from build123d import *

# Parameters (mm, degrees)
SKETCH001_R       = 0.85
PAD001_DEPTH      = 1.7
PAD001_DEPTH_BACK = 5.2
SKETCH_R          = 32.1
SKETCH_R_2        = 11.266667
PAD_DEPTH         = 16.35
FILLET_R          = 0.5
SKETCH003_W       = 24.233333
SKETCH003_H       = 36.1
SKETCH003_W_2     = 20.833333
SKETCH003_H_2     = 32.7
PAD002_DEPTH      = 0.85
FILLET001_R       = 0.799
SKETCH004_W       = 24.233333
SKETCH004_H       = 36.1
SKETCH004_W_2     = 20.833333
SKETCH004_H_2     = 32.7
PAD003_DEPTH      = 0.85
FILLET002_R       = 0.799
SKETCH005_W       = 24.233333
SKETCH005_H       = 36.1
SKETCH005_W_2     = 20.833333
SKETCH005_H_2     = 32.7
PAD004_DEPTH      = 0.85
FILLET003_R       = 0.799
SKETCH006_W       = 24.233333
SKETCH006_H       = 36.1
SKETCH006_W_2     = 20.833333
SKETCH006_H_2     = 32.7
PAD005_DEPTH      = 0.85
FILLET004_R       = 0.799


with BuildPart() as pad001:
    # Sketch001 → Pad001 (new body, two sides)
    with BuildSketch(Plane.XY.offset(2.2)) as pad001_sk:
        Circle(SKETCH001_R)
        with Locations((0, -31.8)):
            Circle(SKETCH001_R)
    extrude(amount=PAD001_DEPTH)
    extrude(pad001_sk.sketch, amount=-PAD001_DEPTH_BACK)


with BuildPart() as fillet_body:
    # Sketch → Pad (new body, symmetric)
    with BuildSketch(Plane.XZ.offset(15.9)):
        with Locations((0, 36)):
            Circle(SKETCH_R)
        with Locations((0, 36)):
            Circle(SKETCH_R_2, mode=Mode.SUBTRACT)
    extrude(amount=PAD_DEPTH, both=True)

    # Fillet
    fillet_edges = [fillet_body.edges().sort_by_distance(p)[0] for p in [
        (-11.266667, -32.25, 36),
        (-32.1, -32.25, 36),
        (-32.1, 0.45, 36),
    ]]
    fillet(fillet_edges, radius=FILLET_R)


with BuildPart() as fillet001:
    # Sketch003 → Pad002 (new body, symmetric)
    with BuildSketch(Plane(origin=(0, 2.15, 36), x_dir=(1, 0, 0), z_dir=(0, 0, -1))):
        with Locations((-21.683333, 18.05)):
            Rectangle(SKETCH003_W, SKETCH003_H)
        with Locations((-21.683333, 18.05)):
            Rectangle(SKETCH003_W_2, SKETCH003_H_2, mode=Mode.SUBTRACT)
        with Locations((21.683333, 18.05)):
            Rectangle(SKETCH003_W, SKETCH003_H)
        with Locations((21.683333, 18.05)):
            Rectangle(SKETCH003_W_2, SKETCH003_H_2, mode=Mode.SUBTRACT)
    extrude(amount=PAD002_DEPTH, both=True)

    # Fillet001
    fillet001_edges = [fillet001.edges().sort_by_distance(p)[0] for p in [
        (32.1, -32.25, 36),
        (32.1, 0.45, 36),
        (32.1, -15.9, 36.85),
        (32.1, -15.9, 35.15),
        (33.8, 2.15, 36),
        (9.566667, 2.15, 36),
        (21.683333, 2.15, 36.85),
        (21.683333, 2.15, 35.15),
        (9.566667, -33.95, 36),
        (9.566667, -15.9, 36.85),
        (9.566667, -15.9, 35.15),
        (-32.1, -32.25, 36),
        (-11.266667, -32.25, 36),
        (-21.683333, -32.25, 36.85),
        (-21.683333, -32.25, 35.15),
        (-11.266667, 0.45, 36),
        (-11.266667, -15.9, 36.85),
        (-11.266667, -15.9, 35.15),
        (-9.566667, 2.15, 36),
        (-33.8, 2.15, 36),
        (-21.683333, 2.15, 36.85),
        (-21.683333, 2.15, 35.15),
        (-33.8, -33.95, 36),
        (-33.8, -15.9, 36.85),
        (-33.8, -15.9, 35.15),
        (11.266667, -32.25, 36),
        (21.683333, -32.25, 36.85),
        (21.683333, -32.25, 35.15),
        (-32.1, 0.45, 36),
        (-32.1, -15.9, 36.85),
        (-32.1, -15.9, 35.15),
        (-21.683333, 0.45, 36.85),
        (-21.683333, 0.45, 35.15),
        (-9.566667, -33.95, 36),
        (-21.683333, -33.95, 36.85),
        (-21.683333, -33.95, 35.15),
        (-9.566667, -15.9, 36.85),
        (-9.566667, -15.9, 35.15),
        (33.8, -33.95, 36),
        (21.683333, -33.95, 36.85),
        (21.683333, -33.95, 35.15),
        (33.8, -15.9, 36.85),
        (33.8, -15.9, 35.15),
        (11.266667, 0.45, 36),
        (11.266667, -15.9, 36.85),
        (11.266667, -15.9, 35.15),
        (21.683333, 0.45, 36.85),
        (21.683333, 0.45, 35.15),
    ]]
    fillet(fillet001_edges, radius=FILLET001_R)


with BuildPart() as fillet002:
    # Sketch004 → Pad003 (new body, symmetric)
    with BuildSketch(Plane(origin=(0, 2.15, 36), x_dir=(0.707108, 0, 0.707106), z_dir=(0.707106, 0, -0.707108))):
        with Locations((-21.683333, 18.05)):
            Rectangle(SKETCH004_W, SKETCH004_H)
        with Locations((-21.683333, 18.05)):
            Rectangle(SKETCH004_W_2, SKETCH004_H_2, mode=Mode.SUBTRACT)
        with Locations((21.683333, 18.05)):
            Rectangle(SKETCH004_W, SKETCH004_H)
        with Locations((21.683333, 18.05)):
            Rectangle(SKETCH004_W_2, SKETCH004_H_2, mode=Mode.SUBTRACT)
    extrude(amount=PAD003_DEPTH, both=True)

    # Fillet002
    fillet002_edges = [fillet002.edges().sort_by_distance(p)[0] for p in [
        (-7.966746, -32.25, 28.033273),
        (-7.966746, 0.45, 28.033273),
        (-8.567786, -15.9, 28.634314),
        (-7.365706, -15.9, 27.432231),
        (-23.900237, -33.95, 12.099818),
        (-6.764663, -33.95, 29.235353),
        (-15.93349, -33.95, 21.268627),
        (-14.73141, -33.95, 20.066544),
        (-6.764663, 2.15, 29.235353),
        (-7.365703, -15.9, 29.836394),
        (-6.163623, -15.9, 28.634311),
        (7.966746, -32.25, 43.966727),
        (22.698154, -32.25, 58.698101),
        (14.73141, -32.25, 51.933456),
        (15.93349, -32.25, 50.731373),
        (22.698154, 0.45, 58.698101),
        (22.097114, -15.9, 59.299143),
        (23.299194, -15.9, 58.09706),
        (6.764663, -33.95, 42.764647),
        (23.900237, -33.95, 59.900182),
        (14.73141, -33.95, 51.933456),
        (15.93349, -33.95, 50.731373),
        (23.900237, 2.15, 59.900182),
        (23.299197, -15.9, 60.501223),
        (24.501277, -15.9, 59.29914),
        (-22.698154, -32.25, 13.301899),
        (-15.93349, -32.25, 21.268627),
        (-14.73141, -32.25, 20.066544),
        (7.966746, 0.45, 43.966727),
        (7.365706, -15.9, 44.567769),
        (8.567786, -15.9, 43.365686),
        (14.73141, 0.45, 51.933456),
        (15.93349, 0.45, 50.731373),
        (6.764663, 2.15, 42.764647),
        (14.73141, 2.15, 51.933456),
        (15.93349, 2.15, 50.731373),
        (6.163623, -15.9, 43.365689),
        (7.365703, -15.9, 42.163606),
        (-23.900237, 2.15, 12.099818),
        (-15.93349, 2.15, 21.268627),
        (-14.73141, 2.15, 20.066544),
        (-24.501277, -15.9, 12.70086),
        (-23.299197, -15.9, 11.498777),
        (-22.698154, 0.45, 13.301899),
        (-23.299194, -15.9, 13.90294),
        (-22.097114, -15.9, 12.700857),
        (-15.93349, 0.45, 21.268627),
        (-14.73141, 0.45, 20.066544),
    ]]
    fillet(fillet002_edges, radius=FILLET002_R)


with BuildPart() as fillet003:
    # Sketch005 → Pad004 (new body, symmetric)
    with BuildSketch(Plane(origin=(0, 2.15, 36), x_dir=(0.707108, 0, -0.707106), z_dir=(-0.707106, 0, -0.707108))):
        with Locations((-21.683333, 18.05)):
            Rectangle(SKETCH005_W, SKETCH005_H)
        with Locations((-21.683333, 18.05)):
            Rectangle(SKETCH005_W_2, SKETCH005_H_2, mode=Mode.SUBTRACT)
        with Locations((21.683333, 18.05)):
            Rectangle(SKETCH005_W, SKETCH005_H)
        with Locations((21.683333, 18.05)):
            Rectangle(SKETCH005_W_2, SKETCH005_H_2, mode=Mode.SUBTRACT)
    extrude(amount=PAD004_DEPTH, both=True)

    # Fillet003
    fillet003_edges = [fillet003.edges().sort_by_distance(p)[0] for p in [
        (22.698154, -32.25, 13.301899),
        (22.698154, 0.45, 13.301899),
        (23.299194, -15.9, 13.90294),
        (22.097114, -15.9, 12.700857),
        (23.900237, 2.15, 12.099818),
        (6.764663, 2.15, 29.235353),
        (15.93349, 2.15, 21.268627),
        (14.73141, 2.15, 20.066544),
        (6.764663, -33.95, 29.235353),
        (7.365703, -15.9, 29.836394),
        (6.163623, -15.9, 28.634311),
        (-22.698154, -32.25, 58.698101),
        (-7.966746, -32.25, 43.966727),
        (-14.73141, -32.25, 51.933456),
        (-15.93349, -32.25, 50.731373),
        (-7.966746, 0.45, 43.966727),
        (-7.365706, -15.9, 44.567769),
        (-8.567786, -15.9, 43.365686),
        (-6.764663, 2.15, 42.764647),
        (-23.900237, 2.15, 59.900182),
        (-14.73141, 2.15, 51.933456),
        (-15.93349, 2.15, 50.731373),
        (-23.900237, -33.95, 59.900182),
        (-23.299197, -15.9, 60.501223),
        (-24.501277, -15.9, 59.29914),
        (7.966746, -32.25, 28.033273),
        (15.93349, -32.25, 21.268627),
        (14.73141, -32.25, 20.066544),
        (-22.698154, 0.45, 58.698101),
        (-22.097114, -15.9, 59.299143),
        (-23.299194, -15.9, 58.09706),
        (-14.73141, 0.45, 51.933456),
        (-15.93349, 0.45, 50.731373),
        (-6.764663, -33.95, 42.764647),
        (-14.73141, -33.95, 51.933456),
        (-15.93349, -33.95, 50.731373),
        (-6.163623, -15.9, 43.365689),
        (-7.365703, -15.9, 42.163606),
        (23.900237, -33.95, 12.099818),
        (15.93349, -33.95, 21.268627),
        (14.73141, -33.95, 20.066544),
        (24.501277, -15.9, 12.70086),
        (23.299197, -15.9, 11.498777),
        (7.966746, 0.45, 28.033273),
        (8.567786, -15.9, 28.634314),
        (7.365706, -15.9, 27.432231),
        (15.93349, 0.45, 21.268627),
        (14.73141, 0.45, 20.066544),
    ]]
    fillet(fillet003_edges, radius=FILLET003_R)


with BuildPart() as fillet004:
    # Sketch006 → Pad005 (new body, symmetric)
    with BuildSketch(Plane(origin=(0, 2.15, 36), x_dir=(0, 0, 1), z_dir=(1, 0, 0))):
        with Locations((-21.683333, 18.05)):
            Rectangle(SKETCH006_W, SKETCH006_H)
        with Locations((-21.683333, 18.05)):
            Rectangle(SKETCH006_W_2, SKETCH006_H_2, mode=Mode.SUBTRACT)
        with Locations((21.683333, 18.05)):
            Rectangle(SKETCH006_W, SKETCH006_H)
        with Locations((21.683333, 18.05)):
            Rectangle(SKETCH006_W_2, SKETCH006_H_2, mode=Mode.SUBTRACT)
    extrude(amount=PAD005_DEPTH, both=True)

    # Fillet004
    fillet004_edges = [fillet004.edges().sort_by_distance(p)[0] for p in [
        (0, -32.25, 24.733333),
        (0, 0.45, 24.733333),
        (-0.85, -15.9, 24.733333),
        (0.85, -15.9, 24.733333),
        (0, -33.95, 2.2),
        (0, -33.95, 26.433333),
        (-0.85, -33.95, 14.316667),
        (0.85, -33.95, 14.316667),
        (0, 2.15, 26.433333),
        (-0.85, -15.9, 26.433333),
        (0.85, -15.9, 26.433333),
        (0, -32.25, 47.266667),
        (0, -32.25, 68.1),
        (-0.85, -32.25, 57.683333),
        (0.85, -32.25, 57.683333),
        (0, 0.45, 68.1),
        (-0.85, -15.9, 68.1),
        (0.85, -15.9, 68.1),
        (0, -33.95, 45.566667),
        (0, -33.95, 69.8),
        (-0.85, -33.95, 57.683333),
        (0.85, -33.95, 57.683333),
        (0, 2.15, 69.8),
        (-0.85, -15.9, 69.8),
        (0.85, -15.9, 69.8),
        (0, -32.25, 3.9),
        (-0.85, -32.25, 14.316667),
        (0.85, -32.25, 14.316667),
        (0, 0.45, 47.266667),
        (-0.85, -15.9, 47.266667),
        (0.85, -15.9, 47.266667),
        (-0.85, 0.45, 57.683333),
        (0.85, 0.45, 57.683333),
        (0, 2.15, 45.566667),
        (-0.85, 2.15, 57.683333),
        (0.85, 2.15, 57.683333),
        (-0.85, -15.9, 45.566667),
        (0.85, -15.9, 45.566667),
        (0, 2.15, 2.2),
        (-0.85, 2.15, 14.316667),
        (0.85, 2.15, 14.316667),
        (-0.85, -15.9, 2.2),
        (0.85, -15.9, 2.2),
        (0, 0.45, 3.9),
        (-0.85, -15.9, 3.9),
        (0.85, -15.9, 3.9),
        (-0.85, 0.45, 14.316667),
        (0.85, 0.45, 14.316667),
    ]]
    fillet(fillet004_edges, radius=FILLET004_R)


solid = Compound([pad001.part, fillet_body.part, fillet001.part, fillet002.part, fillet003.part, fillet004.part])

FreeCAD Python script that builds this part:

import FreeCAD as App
import Part
import Sketcher
from FreeCAD import Vector


def edges_at(feature, points):
    """Names of the edges that pass closest to the given points."""
    edges = feature.Shape.Edges
    near = lambda p: min(range(len(edges)), key=lambda i: edges[i].distToShape(Part.Vertex(*p))[0])
    return sorted({f"Edge{near(p) + 1}" for p in points})


def add_polygon(sketch, points):
    """Adds a closed chain of lines whose ends are joined by coincident constraints."""
    first, n = sketch.GeometryCount, len(points)
    for a, b in zip(points, points[1:] + points[:1]):
        sketch.addGeometry(Part.LineSegment(App.Vector(*a, 0), App.Vector(*b, 0)), False)
    for i in range(n):
        sketch.addConstraint(Sketcher.Constraint("Coincident", first + i, 2, first + (i + 1) % n, 1))

doc = App.newDocument("Part")
params = doc.addObject("Spreadsheet::Sheet", "Params")
for row, (alias, value) in enumerate([
    ("sketch1_diameter", "1.7 mm"),
    ("pad1_length", "1.7 mm"),
    ("pad1_length2", "5.2 mm"),
    ("sketch2_diameter", "64.2 mm"),
    ("pad2_length", "32.7 mm"),
    ("fillet_radius", "0.5 mm"),
    ("sketch3_height", "36.1 mm"),
    ("sketch3_height2", "32.7 mm"),
    ("pad3_length", "1.7 mm"),
    ("fillet2_radius", "0.799 mm"),
    ("sketch4_height", "36.1 mm"),
    ("sketch4_height2", "32.7 mm"),
    ("pad4_length", "1.7 mm"),
    ("fillet3_radius", "0.799 mm"),
    ("sketch5_height", "36.1 mm"),
    ("sketch5_height2", "32.7 mm"),
    ("pad5_length", "1.7 mm"),
    ("fillet4_radius", "0.799 mm"),
    ("sketch6_width", "36.1 mm"),
    ("sketch6_width2", "32.7 mm"),
    ("pad6_length", "1.7 mm"),
    ("fillet5_radius", "0.799 mm"),
], start=1):
    params.set(f"A{row}", alias)
    params.set(f"B{row}", "=" + value)
    params.setAlias(f"B{row}", alias)

body = doc.addObject("PartDesign::Body", "Body")
body.AllowCompound = True

sketch1 = body.newObject("Sketcher::SketchObject", "Sketch")
sketch1.AttachmentSupport = (doc.getObject("XY_Plane"), [""])
sketch1.MapMode = "FlatFace"
sketch1.AttachmentOffset = App.Placement(Vector(0, 0, 2.2), App.Rotation())
sketch1.addGeometry([
    Part.Circle(Vector(0, 0, 0), Vector(0, 0, 1), 0.8),
    Part.Circle(Vector(0, -31.8, 0), Vector(0, 0, 1), 0.8),
], False)
sketch1.addConstraint([
    Sketcher.Constraint("Coincident", 0, 3, -1, 1),
    Sketcher.Constraint("Equal", 0, 1),
    Sketcher.Constraint("PointOnObject", 1, 3, -2),
    Sketcher.Constraint("Diameter", 0, 1.7),
    Sketcher.Constraint("DistanceY", 1, 3, -1, 1, 31.8),
])
sketch1.setExpression("Constraints[3]", "Params.sketch1_diameter")
pad1 = body.newObject("PartDesign::Pad", "Pad")
pad1.Profile = sketch1
pad1.Type = "TwoLengths"
pad1.setExpression("Length", "Params.pad1_length")
pad1.setExpression("Length2", "Params.pad1_length2")
body2 = doc.addObject("PartDesign::Body", "Body001")

sketch2 = body2.newObject("Sketcher::SketchObject", "Sketch001")
sketch2.AttachmentSupport = (doc.getObject("XZ_Plane001"), [""])
sketch2.MapMode = "FlatFace"
sketch2.AttachmentOffset = App.Placement(Vector(0, 0, 15.9), App.Rotation())
sketch2.addGeometry([
    Part.Circle(Vector(0, 36, 0), Vector(0, 0, 1), 32),
    Part.Circle(Vector(0, 36, 0), Vector(0, 0, 1), 11),
], False)
sketch2.addConstraint([
    Sketcher.Constraint("Coincident", 1, 3, 0, 3),
    Sketcher.Constraint("PointOnObject", 0, 3, -2),
    Sketcher.Constraint("Diameter", 0, 64.2),
    Sketcher.Constraint("DistanceY", -1, 1, 0, 3, 36.0),
    Sketcher.Constraint("Diameter", 1, 22.533334),
])
sketch2.setExpression("Constraints[2]", "Params.sketch2_diameter")
pad2 = body2.newObject("PartDesign::Pad", "Pad001")
pad2.Profile = sketch2
pad2.setExpression("Length", "Params.pad2_length")
pad2.Midplane = True
doc.recompute()

fillet = body2.newObject("PartDesign::Fillet", "Fillet")
fillet.Base = (pad2, edges_at(pad2, [(-11.267, -32.25, 36), (-32.1, -32.25, 36), (-32.1, 0.45, 36)]))
fillet.setExpression("Radius", "Params.fillet_radius")
body3 = doc.addObject("PartDesign::Body", "Body002")
body3.AllowCompound = True

sketch3 = body3.newObject("Sketcher::SketchObject", "Sketch002")
sketch3.AttachmentSupport = (doc.getObject("XY_Plane002"), [""])
sketch3.MapMode = "FlatFace"
sketch3.AttachmentOffset = App.Placement(Vector(0, 0, 36), App.Rotation())
add_polygon(sketch3, [(-34, -34), (-34, 2), (-10, 2), (-10, -34)])
add_polygon(sketch3, [(-11, 0), (-32, 0), (-32, -32), (-11, -32)])
add_polygon(sketch3, [(10, -34), (10, 2), (34, 2), (34, -34)])
add_polygon(sketch3, [(32, 0), (11, 0), (11, -32), (32, -32)])
sketch3.addConstraint([
    Sketcher.Constraint("Vertical", 0),
    Sketcher.Constraint("Horizontal", 1),
    Sketcher.Constraint("Vertical", 2),
    Sketcher.Constraint("Horizontal", 3),
    Sketcher.Constraint("Horizontal", 4),
    Sketcher.Constraint("Vertical", 5),
    Sketcher.Constraint("Horizontal", 6),
    Sketcher.Constraint("Vertical", 7),
    Sketcher.Constraint("Vertical", 8),
    Sketcher.Constraint("Horizontal", 9),
    Sketcher.Constraint("Vertical", 10),
    Sketcher.Constraint("Horizontal", 11),
    Sketcher.Constraint("Horizontal", 12),
    Sketcher.Constraint("Vertical", 13),
    Sketcher.Constraint("Horizontal", 14),
    Sketcher.Constraint("Vertical", 15),
    Sketcher.Constraint("Symmetric", 1, 2, 8, 2, -2),
    Sketcher.Constraint("Symmetric", 3, 2, 10, 2, -2),
    Sketcher.Constraint("Symmetric", 7, 2, 12, 2, -2),
    Sketcher.Constraint("Symmetric", 5, 2, 14, 2, -2),
    Sketcher.Constraint("DistanceY", 0, 1, 0, 2, 36.1),
    Sketcher.Constraint("DistanceY", 5, 2, 5, 1, 32.7),
    Sketcher.Constraint("DistanceX", 0, 2, -1, 1, 33.799999),
    Sketcher.Constraint("DistanceX", 4, 2, -1, 1, 32.1),
    Sketcher.Constraint("DistanceY", 4, 2, 0, 2, 1.7),
    Sketcher.Constraint("DistanceX", 6, 2, 2, 2, 1.7),
    Sketcher.Constraint("DistanceY", -1, 1, 0, 2, 2.15),
    Sketcher.Constraint("DistanceX", 1, 1, 1, 2, 24.233333),
])
sketch3.setExpression("Constraints[36]", "Params.sketch3_height")
sketch3.setExpression("Constraints[37]", "Params.sketch3_height2")
pad3 = body3.newObject("PartDesign::Pad", "Pad002")
pad3.Profile = sketch3
pad3.setExpression("Length", "Params.pad3_length")
pad3.Midplane = True
doc.recompute()

fillet2 = body3.newObject("PartDesign::Fillet", "Fillet001")
fillet2.Base = (pad3, ["Edge1"])
fillet2.UseAllEdges = True
fillet2.setExpression("Radius", "Params.fillet2_radius")
body4 = doc.addObject("PartDesign::Body", "Body003")
body4.AllowCompound = True

sketch4 = body4.newObject("Sketcher::SketchObject", "Sketch003")
sketch4.Placement = App.Placement(Vector(0, 2.15, 36), App.Rotation(Vector(0.707107781, 0, 0.707105781), Vector(0, -0.999999999, 0), Vector(0.707105781, 0, -0.707107781), "ZXY"))
add_polygon(sketch4, [(-34, 36), (-34, 0), (-10, 0), (-10, 36)])
add_polygon(sketch4, [(-11, 2), (-32, 2), (-32, 34), (-11, 34)])
add_polygon(sketch4, [(10, 36), (10, 0), (34, 0), (34, 36)])
add_polygon(sketch4, [(32, 2), (11, 2), (11, 34), (32, 34)])
sketch4.addConstraint([
    Sketcher.Constraint("Vertical", 0),
    Sketcher.Constraint("Horizontal", 1),
    Sketcher.Constraint("Vertical", 2),
    Sketcher.Constraint("Horizontal", 3),
    Sketcher.Constraint("Horizontal", 4),
    Sketcher.Constraint("Vertical", 5),
    Sketcher.Constraint("Horizontal", 6),
    Sketcher.Constraint("Vertical", 7),
    Sketcher.Constraint("Vertical", 8),
    Sketcher.Constraint("Horizontal", 9),
    Sketcher.Constraint("Vertical", 10),
    Sketcher.Constraint("Horizontal", 11),
    Sketcher.Constraint("Horizontal", 12),
    Sketcher.Constraint("Vertical", 13),
    Sketcher.Constraint("Horizontal", 14),
    Sketcher.Constraint("Vertical", 15),
    Sketcher.Constraint("Symmetric", 1, 2, 8, 2, -1, 1),
    Sketcher.Constraint("Symmetric", 0, 2, 9, 2, -2),
    Sketcher.Constraint("Symmetric", 7, 2, 12, 2, -2),
    Sketcher.Constraint("Symmetric", 5, 2, 14, 2, -2),
    Sketcher.Constraint("Horizontal", 3, 2, 10, 2),
    Sketcher.Constraint("DistanceY", 0, 2, 0, 1, 36.1),
    Sketcher.Constraint("DistanceY", 5, 1, 5, 2, 32.7),
    Sketcher.Constraint("DistanceX", 0, 2, -1, 1, 33.799999),
    Sketcher.Constraint("DistanceX", 4, 2, -1, 1, 32.099999),
    Sketcher.Constraint("DistanceY", -1, 1, 4, 2, 1.7),
    Sketcher.Constraint("DistanceX", 6, 2, 2, 2, 1.7),
    Sketcher.Constraint("DistanceX", 1, 1, 1, 2, 24.233333),
])
sketch4.setExpression("Constraints[37]", "Params.sketch4_height")
sketch4.setExpression("Constraints[38]", "Params.sketch4_height2")
pad4 = body4.newObject("PartDesign::Pad", "Pad003")
pad4.Profile = sketch4
pad4.setExpression("Length", "Params.pad4_length")
pad4.Midplane = True
doc.recompute()

fillet3 = body4.newObject("PartDesign::Fillet", "Fillet002")
fillet3.Base = (pad4, ["Edge1"])
fillet3.UseAllEdges = True
fillet3.setExpression("Radius", "Params.fillet3_radius")
body5 = doc.addObject("PartDesign::Body", "Body004")
body5.AllowCompound = True

sketch5 = body5.newObject("Sketcher::SketchObject", "Sketch004")
sketch5.Placement = App.Placement(Vector(0, 2.15, 36), App.Rotation(Vector(0.707107781, 0, -0.707105781), Vector(0, -0.999999999, 0), Vector(-0.707105781, 0, -0.707107781), "ZXY"))
add_polygon(sketch5, [(-34, 36), (-34, 0), (-10, 0), (-10, 36)])
add_polygon(sketch5, [(-11, 2), (-32, 2), (-32, 34), (-11, 34)])
add_polygon(sketch5, [(10, 36), (10, 0), (34, 0), (34, 36)])
add_polygon(sketch5, [(32, 2), (11, 2), (11, 34), (32, 34)])
sketch5.addConstraint([
    Sketcher.Constraint("Vertical", 0),
    Sketcher.Constraint("Horizontal", 1),
    Sketcher.Constraint("Vertical", 2),
    Sketcher.Constraint("Horizontal", 3),
    Sketcher.Constraint("Horizontal", 4),
    Sketcher.Constraint("Vertical", 5),
    Sketcher.Constraint("Horizontal", 6),
    Sketcher.Constraint("Vertical", 7),
    Sketcher.Constraint("Vertical", 8),
    Sketcher.Constraint("Horizontal", 9),
    Sketcher.Constraint("Vertical", 10),
    Sketcher.Constraint("Horizontal", 11),
    Sketcher.Constraint("Horizontal", 12),
    Sketcher.Constraint("Vertical", 13),
    Sketcher.Constraint("Horizontal", 14),
    Sketcher.Constraint("Vertical", 15),
    Sketcher.Constraint("Symmetric", 1, 2, 8, 2, -1, 1),
    Sketcher.Constraint("Symmetric", 0, 2, 9, 2, -2),
    Sketcher.Constraint("Symmetric", 7, 2, 12, 2, -2),
    Sketcher.Constraint("Symmetric", 5, 2, 14, 2, -2),
    Sketcher.Constraint("Horizontal", 3, 2, 10, 2),
    Sketcher.Constraint("DistanceY", 0, 2, 0, 1, 36.1),
    Sketcher.Constraint("DistanceY", 5, 1, 5, 2, 32.7),
    Sketcher.Constraint("DistanceX", 0, 2, -1, 1, 33.799999),
    Sketcher.Constraint("DistanceX", 4, 2, -1, 1, 32.099999),
    Sketcher.Constraint("DistanceY", -1, 1, 4, 2, 1.7),
    Sketcher.Constraint("DistanceX", 6, 2, 2, 2, 1.7),
    Sketcher.Constraint("DistanceX", 1, 1, 1, 2, 24.233333),
])
sketch5.setExpression("Constraints[37]", "Params.sketch5_height")
sketch5.setExpression("Constraints[38]", "Params.sketch5_height2")
pad5 = body5.newObject("PartDesign::Pad", "Pad004")
pad5.Profile = sketch5
pad5.setExpression("Length", "Params.pad5_length")
pad5.Midplane = True
doc.recompute()

fillet4 = body5.newObject("PartDesign::Fillet", "Fillet003")
fillet4.Base = (pad5, ["Edge1"])
fillet4.UseAllEdges = True
fillet4.setExpression("Radius", "Params.fillet4_radius")
body6 = doc.addObject("PartDesign::Body", "Body005")
body6.AllowCompound = True

sketch6 = body6.newObject("Sketcher::SketchObject", "Sketch005")
sketch6.AttachmentSupport = (doc.getObject("YZ_Plane005"), [""])
sketch6.MapMode = "FlatFace"
add_polygon(sketch6, [(-34, 2), (2, 2), (2, 26), (-34, 26)])
add_polygon(sketch6, [(0, 25), (0, 4), (-32, 4), (-32, 25)])
add_polygon(sketch6, [(-34, 46), (2, 46), (2, 70), (-34, 70)])
add_polygon(sketch6, [(0, 68), (0, 47), (-32, 47), (-32, 68)])
sketch6.addConstraint([
    Sketcher.Constraint("Horizontal", 0),
    Sketcher.Constraint("Vertical", 1),
    Sketcher.Constraint("Horizontal", 2),
    Sketcher.Constraint("Vertical", 3),
    Sketcher.Constraint("Vertical", 4),
    Sketcher.Constraint("Horizontal", 5),
    Sketcher.Constraint("Vertical", 6),
    Sketcher.Constraint("Horizontal", 7),
    Sketcher.Constraint("Horizontal", 8),
    Sketcher.Constraint("Vertical", 9),
    Sketcher.Constraint("Horizontal", 10),
    Sketcher.Constraint("Vertical", 11),
    Sketcher.Constraint("Vertical", 12),
    Sketcher.Constraint("Horizontal", 13),
    Sketcher.Constraint("Vertical", 14),
    Sketcher.Constraint("Horizontal", 15),
    Sketcher.Constraint("Vertical", 1, 2, 8, 2),
    Sketcher.Constraint("Vertical", 3, 2, 10, 2),
    Sketcher.Constraint("Vertical", 7, 2, 12, 2),
    Sketcher.Constraint("Vertical", 6, 2, 13, 2),
    Sketcher.Constraint("Equal", 3, 9),
    Sketcher.Constraint("Equal", 6, 12),
    Sketcher.Constraint("DistanceX", 0, 1, 0, 2, 36.1),
    Sketcher.Constraint("DistanceX", 5, 2, 5, 1, 32.7),
    Sketcher.Constraint("DistanceY", -1, 1, 0, 2, 2.2),
    Sketcher.Constraint("DistanceY", -1, 1, 4, 2, 3.9),
    Sketcher.Constraint("DistanceY", -1, 1, 9, 2, 69.799999),
    Sketcher.Constraint("DistanceY", -1, 1, 14, 2, 68.099999),
    Sketcher.Constraint("DistanceX", 4, 2, 0, 2, 1.7),
    Sketcher.Constraint("DistanceY", 6, 2, 2, 2, 1.7),
    Sketcher.Constraint("DistanceX", -1, 1, 0, 2, 2.15),
    Sketcher.Constraint("DistanceY", 1, 1, 1, 2, 24.233333),
])
sketch6.setExpression("Constraints[38]", "Params.sketch6_width")
sketch6.setExpression("Constraints[39]", "Params.sketch6_width2")
pad6 = body6.newObject("PartDesign::Pad", "Pad005")
pad6.Profile = sketch6
pad6.setExpression("Length", "Params.pad6_length")
pad6.Midplane = True
doc.recompute()

fillet5 = body6.newObject("PartDesign::Fillet", "Fillet004")
fillet5.Base = (pad6, ["Edge1"])
fillet5.UseAllEdges = True
fillet5.setExpression("Radius", "Params.fillet5_radius")

doc.recompute()
